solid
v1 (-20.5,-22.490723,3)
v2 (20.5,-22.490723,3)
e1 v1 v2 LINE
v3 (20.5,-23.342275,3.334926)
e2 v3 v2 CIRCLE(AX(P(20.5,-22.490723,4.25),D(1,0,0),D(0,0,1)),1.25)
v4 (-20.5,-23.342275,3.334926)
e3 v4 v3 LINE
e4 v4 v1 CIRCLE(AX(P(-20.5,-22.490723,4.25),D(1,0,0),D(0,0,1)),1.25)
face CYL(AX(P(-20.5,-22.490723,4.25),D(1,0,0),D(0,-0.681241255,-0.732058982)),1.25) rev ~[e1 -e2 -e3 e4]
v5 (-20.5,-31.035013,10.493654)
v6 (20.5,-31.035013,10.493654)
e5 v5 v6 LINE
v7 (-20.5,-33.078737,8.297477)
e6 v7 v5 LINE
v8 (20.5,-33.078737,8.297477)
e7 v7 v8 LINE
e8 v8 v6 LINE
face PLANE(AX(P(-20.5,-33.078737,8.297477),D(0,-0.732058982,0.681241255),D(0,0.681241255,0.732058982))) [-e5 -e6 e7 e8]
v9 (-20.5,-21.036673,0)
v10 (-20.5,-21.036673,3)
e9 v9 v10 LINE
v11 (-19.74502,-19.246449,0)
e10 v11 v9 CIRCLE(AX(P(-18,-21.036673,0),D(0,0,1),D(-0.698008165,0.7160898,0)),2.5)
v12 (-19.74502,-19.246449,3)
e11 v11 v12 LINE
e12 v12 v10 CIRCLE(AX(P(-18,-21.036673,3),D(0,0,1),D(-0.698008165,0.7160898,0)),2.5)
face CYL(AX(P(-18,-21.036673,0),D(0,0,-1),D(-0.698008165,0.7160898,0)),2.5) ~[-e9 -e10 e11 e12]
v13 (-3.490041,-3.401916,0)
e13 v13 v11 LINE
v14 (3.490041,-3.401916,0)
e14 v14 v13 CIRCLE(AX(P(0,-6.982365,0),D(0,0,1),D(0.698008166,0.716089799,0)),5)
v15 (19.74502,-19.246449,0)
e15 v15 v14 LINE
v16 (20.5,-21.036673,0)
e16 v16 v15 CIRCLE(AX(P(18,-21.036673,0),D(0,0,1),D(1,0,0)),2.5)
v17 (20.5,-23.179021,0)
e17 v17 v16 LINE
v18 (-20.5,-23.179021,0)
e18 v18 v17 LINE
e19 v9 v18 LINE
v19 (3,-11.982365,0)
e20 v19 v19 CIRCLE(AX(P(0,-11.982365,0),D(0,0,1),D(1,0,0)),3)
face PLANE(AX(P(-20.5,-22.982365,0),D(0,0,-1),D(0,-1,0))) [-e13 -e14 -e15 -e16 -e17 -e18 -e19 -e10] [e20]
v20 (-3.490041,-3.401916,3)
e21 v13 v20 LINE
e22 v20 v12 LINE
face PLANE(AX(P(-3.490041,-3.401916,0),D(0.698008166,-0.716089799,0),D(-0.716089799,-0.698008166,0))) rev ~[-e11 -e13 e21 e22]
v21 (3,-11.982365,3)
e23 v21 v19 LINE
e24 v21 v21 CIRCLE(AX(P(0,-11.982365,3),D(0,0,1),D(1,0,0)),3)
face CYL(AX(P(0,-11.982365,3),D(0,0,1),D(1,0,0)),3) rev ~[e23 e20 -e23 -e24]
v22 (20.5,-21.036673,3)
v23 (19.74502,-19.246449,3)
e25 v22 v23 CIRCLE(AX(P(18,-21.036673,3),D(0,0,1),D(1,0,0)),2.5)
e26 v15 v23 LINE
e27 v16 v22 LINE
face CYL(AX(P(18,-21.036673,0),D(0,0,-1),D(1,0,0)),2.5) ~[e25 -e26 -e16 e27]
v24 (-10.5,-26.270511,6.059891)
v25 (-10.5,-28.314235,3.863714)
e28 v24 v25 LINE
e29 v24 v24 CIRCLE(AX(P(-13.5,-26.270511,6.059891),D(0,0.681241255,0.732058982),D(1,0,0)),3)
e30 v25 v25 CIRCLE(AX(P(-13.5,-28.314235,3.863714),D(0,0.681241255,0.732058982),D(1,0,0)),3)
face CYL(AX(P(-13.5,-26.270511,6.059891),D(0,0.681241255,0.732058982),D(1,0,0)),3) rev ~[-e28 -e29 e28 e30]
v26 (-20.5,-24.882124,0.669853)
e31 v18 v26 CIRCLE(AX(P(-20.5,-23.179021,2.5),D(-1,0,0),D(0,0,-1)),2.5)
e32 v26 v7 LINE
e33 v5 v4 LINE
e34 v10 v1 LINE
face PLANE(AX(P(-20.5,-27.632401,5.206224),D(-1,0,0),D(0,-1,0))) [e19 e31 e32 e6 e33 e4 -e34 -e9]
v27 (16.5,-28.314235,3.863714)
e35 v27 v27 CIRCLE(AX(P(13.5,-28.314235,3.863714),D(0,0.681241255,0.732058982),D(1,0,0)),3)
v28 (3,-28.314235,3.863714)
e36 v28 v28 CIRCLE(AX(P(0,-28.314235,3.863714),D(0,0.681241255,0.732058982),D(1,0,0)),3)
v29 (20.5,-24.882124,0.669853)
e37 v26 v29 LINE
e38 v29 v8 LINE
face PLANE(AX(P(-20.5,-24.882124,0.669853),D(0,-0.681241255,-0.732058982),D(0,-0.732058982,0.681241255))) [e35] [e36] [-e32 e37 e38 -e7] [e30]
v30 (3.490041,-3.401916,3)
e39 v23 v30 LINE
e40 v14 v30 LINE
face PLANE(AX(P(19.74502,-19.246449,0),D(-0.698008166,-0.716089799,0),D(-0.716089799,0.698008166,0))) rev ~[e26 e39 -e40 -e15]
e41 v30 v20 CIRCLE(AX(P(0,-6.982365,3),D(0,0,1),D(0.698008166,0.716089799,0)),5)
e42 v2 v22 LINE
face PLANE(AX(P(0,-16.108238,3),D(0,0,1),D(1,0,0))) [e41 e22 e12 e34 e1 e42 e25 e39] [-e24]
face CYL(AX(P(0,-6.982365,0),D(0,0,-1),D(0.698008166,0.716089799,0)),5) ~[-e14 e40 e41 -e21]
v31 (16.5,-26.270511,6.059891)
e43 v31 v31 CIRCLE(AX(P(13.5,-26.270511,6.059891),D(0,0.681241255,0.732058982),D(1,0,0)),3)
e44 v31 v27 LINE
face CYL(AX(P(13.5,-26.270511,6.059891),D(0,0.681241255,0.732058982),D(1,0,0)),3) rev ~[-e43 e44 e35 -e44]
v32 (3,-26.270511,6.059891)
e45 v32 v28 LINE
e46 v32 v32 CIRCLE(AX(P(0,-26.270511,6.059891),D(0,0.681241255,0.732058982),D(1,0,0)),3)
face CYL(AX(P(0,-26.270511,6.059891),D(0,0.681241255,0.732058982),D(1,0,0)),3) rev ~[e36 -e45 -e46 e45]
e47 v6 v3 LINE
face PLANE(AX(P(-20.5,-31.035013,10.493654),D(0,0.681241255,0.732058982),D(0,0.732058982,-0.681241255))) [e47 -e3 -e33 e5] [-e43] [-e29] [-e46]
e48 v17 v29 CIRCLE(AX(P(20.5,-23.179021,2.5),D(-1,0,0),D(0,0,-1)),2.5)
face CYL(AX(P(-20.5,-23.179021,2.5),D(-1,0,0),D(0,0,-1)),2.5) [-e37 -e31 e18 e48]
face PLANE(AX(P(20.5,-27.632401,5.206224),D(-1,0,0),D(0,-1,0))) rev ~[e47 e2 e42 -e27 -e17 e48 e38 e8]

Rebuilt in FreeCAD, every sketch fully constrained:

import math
import FreeCAD as App
import Part
import Sketcher


def edges_at(feature, points):
    """Names of the edges that pass closest to the given points."""
    edges = feature.Shape.Edges
    near = lambda p: min(range(len(edges)), key=lambda i: edges[i].distToShape(Part.Vertex(*p))[0])
    return sorted({f"Edge{near(p) + 1}" for p in points})

doc = App.newDocument("Part")
params = doc.addObject("Spreadsheet::Sheet", "Params")
for row, (alias, value) in enumerate([
    ("sketch1_radius", "5 mm"),
    ("sketch1_radius2", "2.5 mm"),
    ("sketch1_width", "41 mm"),
    ("pad1_length", "3 mm"),
    ("sketch2_diameter", "6 mm"),
    ("pocket1_length", "3 mm"),
    ("sketch3_radius", "2.5 mm"),
    ("sketch3_height", "3 mm"),
    ("sketch3_length", "11 mm"),
    ("sketch3_length2", "3 mm"),
    ("pad2_length", "41 mm"),
    ("fillet_radius", "1.25 mm"),
    ("sketch4_diameter", "6 mm"),
    ("pocket2_length", "3 mm"),
], start=1):
    params.set(f"A{row}", alias)
    params.set(f"B{row}", "=" + value)
    params.setAlias(f"B{row}", alias)

body = doc.addObject("PartDesign::Body", "Body")

# Sketch on XY plane
sketch1 = body.newObject("Sketcher::SketchObject", "Sketch")
sketch1.AttachmentSupport = (doc.getObject("XY_Plane"), [""])
sketch1.MapMode = "FlatFace"
sketch1.addGeometry(Part.ArcOfCircle(Part.Circle(App.Vector(0, -7, 0), App.Vector(0, 0, 1), 5), math.radians(46), math.radians(134)), False)
sketch1.addGeometry(Part.LineSegment(App.Vector(-3.5, -3.4, 0), App.Vector(-19.7, -19.2, 0)), False)
sketch1.addGeometry(Part.ArcOfCircle(Part.Circle(App.Vector(-18, -21, 0), App.Vector(0, 0, 1), 2.5), math.radians(134), math.radians(180)), False)
sketch1.addGeometry(Part.LineSegment(App.Vector(-20.5, -21, 0), App.Vector(-20.5, -23, 0)), False)
sketch1.addGeometry(Part.LineSegment(App.Vector(-20.5, -23, 0), App.Vector(20.5, -23, 0)), False)
sketch1.addGeometry(Part.LineSegment(App.Vector(20.5, -23, 0), App.Vector(20.5, -21, 0)), False)
sketch1.addGeometry(Part.ArcOfCircle(Part.Circle(App.Vector(18, -21, 0), App.Vector(0, 0, 1), 2.5), math.radians(0), math.radians(46)), False)
sketch1.addGeometry(Part.LineSegment(App.Vector(19.7, -19.2, 0), App.Vector(3.5, -3.4, 0)), False)
sketch1.addConstraint(Sketcher.Constraint("Tangent", 0, 2, 1, 1))
sketch1.addConstraint(Sketcher.Constraint("Tangent", 1, 2, 2, 1))
sketch1.addConstraint(Sketcher.Constraint("Tangent", 2, 2, 3, 1))
sketch1.addConstraint(Sketcher.Constraint("Coincident", 3, 2, 4, 1))
sketch1.addConstraint(Sketcher.Constraint("Coincident", 4, 2, 5, 1))
sketch1.addConstraint(Sketcher.Constraint("Tangent", 5, 2, 6, 1))
sketch1.addConstraint(Sketcher.Constraint("Tangent", 6, 2, 7, 1))
sketch1.addConstraint(Sketcher.Constraint("Tangent", 7, 2, 0, 1))
sketch1.addConstraint(Sketcher.Constraint("Vertical", 3))
sketch1.addConstraint(Sketcher.Constraint("Horizontal", 4))
sketch1.addConstraint(Sketcher.Constraint("Vertical", 5))
sketch1.addConstraint(Sketcher.Constraint("Equal", 2, 6))
sketch1.addConstraint(Sketcher.Constraint("Symmetric", 2, 3, 6, 3, -2))
sketch1.addConstraint(Sketcher.Constraint("PointOnObject", 0, 3, -2))
sketch1.addConstraint(Sketcher.Constraint("Radius", 0, 5.0))
sketch1.addConstraint(Sketcher.Constraint("Radius", 2, 2.5))
sketch1.addConstraint(Sketcher.Constraint("DistanceX", 4, 1, 4, 2, 41.0))
sketch1.addConstraint(Sketcher.Constraint("DistanceY", 3, 2, 0, 3, 16.0))
sketch1.addConstraint(Sketcher.Constraint("DistanceY", 3, 2, 3, 1, 1.945691))
sketch1.addConstraint(Sketcher.Constraint("DistanceY", 1, 2, -1, 1, 19.246449))
sketch1.setExpression("Constraints[14]", "Params.sketch1_radius")
sketch1.setExpression("Constraints[15]", "Params.sketch1_radius2")
sketch1.setExpression("Constraints[16]", "Params.sketch1_width")
pad1 = body.newObject("PartDesign::Pad", "Pad")
pad1.Profile = sketch1
pad1.setExpression("Length", "Params.pad1_length")

# Sketch on XY plane
sketch2 = body.newObject("Sketcher::SketchObject", "Sketch001")
sketch2.AttachmentSupport = (doc.getObject("XY_Plane"), [""])
sketch2.MapMode = "FlatFace"
sketch2.AttachmentOffset = App.Placement(App.Vector(0, 0, 3), App.Rotation())
sketch2.addGeometry(Part.Circle(App.Vector(0, -12, 0), App.Vector(0, 0, 1), 3), False)
sketch2.addConstraint(Sketcher.Constraint("PointOnObject", 0, 3, -2))
sketch2.addConstraint(Sketcher.Constraint("Diameter", 0, 6.0))
sketch2.addConstraint(Sketcher.Constraint("DistanceY", 0, 3, -1, 1, 11.982365))
sketch2.setExpression("Constraints[1]", "Params.sketch2_diameter")
pocket1 = body.newObject("PartDesign::Pocket", "Pocket")
pocket1.Profile = sketch2
pocket1.setExpression("Length", "Params.pocket1_length")

# Sketch on YZ plane
sketch3 = body.newObject("Sketcher::SketchObject", "Sketch002")
sketch3.AttachmentSupport = (doc.getObject("YZ_Plane"), [""])
sketch3.MapMode = "FlatFace"
sketch3.AttachmentOffset = App.Placement(App.Vector(0, 0, -20.5), App.Rotation())
sketch3.addGeometry(Part.LineSegment(App.Vector(-31.04, 10.49, 0), App.Vector(-22.98, 3, 0)), False)
sketch3.addGeometry(Part.LineSegment(App.Vector(-22.98, 3, 0), App.Vector(-22.98, 0, 0)), False)
sketch3.addGeometry(Part.LineSegment(App.Vector(-22.98, 0, 0), App.Vector(-23.18, 0, 0)), False)
sketch3.addGeometry(Part.ArcOfCircle(Part.Circle(App.Vector(-23.18, 2.5, 0), App.Vector(0, 0, 1), 2.5), math.radians(-133), math.radians(-90)), False)
sketch3.addGeometry(Part.LineSegment(App.Vector(-24.88, 0.67, 0), App.Vector(-33.08, 8.3, 0)), False)
sketch3.addGeometry(Part.LineSegment(App.Vector(-33.08, 8.3, 0), App.Vector(-31.04, 10.49, 0)), False)
sketch3.addConstraint(Sketcher.Constraint("Coincident", 0, 2, 1, 1))
sketch3.addConstraint(Sketcher.Constraint("Coincident", 1, 2, 2, 1))
sketch3.addConstraint(Sketcher.Constraint("Tangent", 2, 2, 3, 2))
sketch3.addConstraint(Sketcher.Constraint("Tangent", 3, 1, 4, 1))
sketch3.addConstraint(Sketcher.Constraint("Coincident", 4, 2, 5, 1))
sketch3.addConstraint(Sketcher.Constraint("Coincident", 5, 2, 0, 1))
sketch3.addConstraint(Sketcher.Constraint("Vertical", 1))
sketch3.addConstraint(Sketcher.Constraint("Horizontal", 2))
sketch3.addConstraint(Sketcher.Constraint("PointOnObject", 1, 2, -1))
sketch3.addConstraint(Sketcher.Constraint("Parallel", 0, 4))
sketch3.addConstraint(Sketcher.Constraint("Perpendicular", 4, 5))
sketch3.addConstraint(Sketcher.Constraint("Radius", 3, 2.5))
sketch3.addConstraint(Sketcher.Constraint("DistanceY", 1, 2, 1, 1, 3.0))
sketch3.addConstraint(Sketcher.Constraint("Distance", 0, 11.0))
sketch3.addConstraint(Sketcher.Constraint("Distance", 5, 3.0))
sketch3.addConstraint(Sketcher.Constraint("DistanceY", 3, 1, 5, 2, 9.823801))
sketch3.addConstraint(Sketcher.Constraint("DistanceX", 3, 3, -1, 1, 23.179021))
sketch3.setExpression("Constraints[11]", "Params.sketch3_radius")
sketch3.setExpression("Constraints[12]", "Params.sketch3_height")
sketch3.setExpression("Constraints[13]", "Params.sketch3_length")
sketch3.setExpression("Constraints[14]", "Params.sketch3_length2")
pad2 = body.newObject("PartDesign::Pad", "Pad001")
pad2.Profile = sketch3
pad2.setExpression("Length", "Params.pad2_length")
doc.recompute()

fillet = body.newObject("PartDesign::Fillet", "Fillet")
fillet.Base = (pad2, edges_at(pad2, [(0, -22.982, 3)]))
fillet.setExpression("Radius", "Params.fillet_radius")

# Sketch on an angled plane
sketch4 = body.newObject("Sketcher::SketchObject", "Sketch003")
sketch4.Placement = App.Placement(App.Vector(0, -9.169751, -9.853776), App.Rotation(App.Vector(1, 0, 0), App.Vector(0, 0.732058982, -0.681241255), App.Vector(0, 0.681241255, 0.732058982), "ZXY"))
sketch4.addGeometry(Part.Circle(App.Vector(13.5, -23.4, 0), App.Vector(0, 0, 1), 3), False)
sketch4.addGeometry(Part.Circle(App.Vector(0, -23.4, 0), App.Vector(0, 0, 1), 3), False)
sketch4.addGeometry(Part.Circle(App.Vector(-13.5, -23.4, 0), App.Vector(0, 0, 1), 3), False)
sketch4.addConstraint(Sketcher.Constraint("Equal", 0, 1))
sketch4.addConstraint(Sketcher.Constraint("Equal", 1, 2))
sketch4.addConstraint(Sketcher.Constraint("Symmetric", 0, 3, 2, 3, -2))
sketch4.addConstraint(Sketcher.Constraint("PointOnObject", 1, 3, -2))
sketch4.addConstraint(Sketcher.Constraint("Horizontal", 0, 3, 1, 3))
sketch4.addConstraint(Sketcher.Constraint("Diameter", 0, 6.0))
sketch4.addConstraint(Sketcher.Constraint("DistanceX", 2, 3, 0, 3, 27.0))
sketch4.addConstraint(Sketcher.Constraint("DistanceY", 0, 3, -1, 1, 23.359811))
sketch4.setExpression("Constraints[5]", "Params.sketch4_diameter")
pocket2 = body.newObject("PartDesign::Pocket", "Pocket001")
pocket2.Profile = sketch4
pocket2.setExpression("Length", "Params.pocket2_length")

doc.recompute()
